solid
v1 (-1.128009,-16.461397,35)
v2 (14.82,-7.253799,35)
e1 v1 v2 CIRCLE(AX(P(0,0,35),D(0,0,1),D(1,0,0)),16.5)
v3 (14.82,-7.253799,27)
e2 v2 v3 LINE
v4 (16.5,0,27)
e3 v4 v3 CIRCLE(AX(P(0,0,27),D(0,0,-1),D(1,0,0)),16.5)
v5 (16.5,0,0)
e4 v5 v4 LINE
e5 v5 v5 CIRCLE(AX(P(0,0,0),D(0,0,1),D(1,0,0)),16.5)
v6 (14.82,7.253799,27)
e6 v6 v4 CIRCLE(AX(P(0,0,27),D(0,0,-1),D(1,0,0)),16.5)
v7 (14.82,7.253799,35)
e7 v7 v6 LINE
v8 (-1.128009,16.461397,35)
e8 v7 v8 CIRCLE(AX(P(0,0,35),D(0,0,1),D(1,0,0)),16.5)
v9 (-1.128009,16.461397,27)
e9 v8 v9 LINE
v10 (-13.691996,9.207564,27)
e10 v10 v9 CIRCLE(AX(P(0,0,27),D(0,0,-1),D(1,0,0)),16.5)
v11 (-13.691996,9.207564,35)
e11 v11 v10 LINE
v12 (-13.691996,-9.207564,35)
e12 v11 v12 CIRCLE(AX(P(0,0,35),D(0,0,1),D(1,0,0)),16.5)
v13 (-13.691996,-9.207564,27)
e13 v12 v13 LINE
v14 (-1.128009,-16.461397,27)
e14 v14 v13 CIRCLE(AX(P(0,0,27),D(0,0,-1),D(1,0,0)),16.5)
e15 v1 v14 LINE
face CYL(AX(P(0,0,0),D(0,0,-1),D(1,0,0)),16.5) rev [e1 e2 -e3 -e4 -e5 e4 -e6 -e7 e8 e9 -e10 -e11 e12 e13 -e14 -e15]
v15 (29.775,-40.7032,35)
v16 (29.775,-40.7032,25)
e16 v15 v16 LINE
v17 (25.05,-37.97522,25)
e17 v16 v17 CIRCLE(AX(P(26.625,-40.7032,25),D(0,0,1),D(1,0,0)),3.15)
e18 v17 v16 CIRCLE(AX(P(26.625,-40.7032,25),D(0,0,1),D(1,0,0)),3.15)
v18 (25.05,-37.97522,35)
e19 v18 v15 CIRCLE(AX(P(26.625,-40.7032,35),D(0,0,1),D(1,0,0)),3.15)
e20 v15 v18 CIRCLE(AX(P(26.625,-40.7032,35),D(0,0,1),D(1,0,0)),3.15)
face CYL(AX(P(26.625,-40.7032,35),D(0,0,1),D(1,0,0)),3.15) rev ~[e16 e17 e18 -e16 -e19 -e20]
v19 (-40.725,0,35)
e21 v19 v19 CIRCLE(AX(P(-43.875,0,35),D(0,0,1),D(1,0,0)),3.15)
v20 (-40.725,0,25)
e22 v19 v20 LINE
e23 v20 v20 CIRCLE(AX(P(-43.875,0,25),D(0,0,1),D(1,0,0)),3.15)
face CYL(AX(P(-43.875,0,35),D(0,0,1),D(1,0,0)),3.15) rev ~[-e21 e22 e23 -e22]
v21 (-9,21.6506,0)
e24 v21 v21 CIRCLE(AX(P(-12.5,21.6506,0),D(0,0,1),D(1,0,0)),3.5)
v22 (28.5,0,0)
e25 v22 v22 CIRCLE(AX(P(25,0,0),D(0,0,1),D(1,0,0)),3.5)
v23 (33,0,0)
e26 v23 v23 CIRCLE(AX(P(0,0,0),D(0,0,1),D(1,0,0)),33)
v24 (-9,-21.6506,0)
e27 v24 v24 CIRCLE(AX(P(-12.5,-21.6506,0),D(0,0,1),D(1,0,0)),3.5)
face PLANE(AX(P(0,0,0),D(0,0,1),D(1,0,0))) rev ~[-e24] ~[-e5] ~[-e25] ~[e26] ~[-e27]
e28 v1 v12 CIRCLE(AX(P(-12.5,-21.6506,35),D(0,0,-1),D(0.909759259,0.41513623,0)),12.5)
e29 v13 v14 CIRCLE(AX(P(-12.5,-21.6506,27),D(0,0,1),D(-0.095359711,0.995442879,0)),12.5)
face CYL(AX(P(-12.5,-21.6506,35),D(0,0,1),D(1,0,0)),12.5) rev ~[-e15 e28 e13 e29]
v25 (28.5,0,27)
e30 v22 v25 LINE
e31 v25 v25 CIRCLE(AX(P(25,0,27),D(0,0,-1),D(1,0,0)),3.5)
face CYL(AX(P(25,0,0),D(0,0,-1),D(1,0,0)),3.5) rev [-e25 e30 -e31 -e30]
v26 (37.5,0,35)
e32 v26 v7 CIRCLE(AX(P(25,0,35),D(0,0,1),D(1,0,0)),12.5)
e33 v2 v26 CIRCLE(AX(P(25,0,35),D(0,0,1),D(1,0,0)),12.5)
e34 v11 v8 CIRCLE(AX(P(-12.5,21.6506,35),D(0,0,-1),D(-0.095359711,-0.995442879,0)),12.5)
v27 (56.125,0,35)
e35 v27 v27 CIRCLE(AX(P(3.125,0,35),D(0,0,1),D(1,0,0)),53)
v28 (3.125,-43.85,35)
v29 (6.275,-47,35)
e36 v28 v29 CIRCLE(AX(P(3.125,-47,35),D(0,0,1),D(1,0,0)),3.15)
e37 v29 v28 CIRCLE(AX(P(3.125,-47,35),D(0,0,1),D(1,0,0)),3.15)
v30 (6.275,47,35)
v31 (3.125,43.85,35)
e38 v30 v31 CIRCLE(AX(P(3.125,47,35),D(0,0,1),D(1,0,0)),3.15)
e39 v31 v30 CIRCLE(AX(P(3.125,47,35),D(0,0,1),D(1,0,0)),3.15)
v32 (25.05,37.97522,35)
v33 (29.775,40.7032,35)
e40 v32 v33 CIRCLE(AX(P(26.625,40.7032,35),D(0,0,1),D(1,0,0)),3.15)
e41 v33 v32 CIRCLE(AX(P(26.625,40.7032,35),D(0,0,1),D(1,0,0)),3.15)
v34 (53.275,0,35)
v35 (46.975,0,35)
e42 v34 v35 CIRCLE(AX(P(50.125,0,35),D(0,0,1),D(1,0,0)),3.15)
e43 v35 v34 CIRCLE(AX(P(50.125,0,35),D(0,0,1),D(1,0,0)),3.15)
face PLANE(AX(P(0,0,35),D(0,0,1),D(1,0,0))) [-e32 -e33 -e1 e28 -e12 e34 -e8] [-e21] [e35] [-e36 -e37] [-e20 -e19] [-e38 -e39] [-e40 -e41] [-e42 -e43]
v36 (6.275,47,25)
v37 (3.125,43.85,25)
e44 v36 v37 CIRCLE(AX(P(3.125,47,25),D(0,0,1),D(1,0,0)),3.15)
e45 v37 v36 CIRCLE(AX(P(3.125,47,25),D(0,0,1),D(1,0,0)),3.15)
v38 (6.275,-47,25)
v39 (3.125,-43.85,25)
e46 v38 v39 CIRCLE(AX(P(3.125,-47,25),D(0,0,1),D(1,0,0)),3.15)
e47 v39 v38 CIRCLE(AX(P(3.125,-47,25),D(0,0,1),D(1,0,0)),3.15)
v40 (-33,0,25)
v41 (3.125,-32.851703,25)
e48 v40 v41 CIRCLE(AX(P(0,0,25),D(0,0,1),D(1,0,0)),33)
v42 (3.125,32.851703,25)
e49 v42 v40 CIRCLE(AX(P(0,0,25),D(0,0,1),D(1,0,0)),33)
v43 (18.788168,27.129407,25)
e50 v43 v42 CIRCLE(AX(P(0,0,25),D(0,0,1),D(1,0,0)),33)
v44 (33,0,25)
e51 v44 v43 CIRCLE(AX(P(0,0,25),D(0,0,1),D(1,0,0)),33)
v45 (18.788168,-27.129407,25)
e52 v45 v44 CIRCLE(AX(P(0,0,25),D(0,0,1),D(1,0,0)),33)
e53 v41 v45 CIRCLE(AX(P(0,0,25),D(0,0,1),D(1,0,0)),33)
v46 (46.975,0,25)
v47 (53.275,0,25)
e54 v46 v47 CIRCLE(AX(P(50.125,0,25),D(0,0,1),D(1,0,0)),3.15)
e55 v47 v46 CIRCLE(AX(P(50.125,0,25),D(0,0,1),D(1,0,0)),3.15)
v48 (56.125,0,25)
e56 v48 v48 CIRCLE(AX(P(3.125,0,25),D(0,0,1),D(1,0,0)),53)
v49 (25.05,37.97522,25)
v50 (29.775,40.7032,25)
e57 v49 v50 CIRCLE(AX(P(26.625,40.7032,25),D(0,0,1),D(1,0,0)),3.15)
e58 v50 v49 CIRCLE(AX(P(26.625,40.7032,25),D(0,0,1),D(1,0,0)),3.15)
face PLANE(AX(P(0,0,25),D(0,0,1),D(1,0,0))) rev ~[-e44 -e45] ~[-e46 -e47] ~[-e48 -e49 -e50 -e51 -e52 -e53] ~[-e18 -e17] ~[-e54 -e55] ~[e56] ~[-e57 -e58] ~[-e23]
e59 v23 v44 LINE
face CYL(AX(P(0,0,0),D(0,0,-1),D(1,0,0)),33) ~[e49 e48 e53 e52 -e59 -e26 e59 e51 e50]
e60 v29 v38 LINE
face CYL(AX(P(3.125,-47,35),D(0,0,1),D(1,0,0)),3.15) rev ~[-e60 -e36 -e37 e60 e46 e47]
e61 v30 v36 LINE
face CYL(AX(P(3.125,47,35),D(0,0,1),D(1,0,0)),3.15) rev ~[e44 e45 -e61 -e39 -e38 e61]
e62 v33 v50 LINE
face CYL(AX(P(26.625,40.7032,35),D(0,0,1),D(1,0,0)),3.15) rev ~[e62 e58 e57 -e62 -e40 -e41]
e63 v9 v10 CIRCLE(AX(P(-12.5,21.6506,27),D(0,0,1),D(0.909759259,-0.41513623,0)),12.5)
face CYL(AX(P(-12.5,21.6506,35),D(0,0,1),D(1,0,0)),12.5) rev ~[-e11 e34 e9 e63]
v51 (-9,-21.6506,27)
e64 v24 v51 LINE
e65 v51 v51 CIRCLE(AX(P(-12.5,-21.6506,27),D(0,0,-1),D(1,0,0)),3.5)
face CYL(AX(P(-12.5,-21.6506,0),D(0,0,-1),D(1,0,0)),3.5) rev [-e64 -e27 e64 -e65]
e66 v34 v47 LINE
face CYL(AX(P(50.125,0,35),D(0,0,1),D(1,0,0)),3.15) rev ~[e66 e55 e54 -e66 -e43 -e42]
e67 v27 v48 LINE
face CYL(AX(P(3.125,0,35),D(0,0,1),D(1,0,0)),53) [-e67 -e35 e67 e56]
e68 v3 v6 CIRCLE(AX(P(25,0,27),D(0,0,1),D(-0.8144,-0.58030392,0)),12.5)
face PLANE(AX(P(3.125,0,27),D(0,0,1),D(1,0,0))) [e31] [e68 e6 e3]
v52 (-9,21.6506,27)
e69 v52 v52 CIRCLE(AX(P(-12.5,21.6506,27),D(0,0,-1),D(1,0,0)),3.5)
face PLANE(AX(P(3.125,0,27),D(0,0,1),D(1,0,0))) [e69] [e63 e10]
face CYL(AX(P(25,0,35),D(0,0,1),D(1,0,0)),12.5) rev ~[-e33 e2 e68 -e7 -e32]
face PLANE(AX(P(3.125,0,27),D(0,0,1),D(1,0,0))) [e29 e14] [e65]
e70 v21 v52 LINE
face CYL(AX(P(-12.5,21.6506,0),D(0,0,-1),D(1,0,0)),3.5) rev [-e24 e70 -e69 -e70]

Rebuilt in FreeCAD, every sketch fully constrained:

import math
import FreeCAD as App
import Part
import Sketcher
Q = App.Units.Quantity

doc = App.newDocument("Part")
params = doc.addObject("Spreadsheet::Sheet", "Params")
for row, (alias, value) in enumerate([
    ("sketch1_diameter", "66 mm"),
    ("sketch1_diameter2", "7 mm"),
    ("sketch1_diameter3", "33 mm"),
    ("pad1_length", "35 mm"),
    ("sketch2_diameter", "106 mm"),
    ("sketch2_diameter2", "6.3 mm"),
    ("sketch2_radius", "33 mm"),
    ("pad2_length", "10 mm"),
    ("sketch3_diameter", "15 mm"),
    ("pocket1_length", "5 mm"),
    ("sketch4_diameter", "25 mm"),
    ("pocket2_length", "8 mm"),
], start=1):
    params.set(f"A{row}", alias)
    params.set(f"B{row}", "=" + value)
    params.setAlias(f"B{row}", alias)

body = doc.addObject("PartDesign::Body", "Body")

# Sketch on XY plane
sketch1 = body.newObject("Sketcher::SketchObject", "Sketch")
sketch1.AttachmentSupport = (doc.getObject("XY_Plane"), [""])
sketch1.MapMode = "FlatFace"
sketch1.addGeometry([
    Part.Circle(App.Vector(0, 0, 0), App.Vector(0, 0, 1), 33),  # 0
    Part.Circle(App.Vector(-12.5, -21.7, 0), App.Vector(0, 0, 1), 3.5),  # 1
    Part.Circle(App.Vector(-12.5, 21.7, 0), App.Vector(0, 0, 1), 3.5),  # 2
    Part.Circle(App.Vector(0, 0, 0), App.Vector(0, 0, 1), 16.5),  # 3
    Part.Circle(App.Vector(25, 0, 0), App.Vector(0, 0, 1), 3.5),  # 4
], False)
sketch1.addConstraint([
    Sketcher.Constraint("Coincident", 0, 3, -1, 1),
    Sketcher.Constraint("Coincident", 3, 3, -1, 1),
    Sketcher.Constraint("Equal", 1, 2),
    Sketcher.Constraint("Equal", 2, 4),
    Sketcher.Constraint("Symmetric", 1, 3, 2, 3, -1),
    Sketcher.Constraint("PointOnObject", 4, 3, -1),
    Sketcher.Constraint("Diameter", 0, Q("66 mm")),
    Sketcher.Constraint("Diameter", 1, Q("7 mm")),
    Sketcher.Constraint("Diameter", 3, Q("33 mm")),
    Sketcher.Constraint("DistanceX", -1, 1, 4, 3, Q("25 mm")),
    Sketcher.Constraint("DistanceX", 1, 3, -1, 1, Q("12.5 mm")),
    Sketcher.Constraint("DistanceY", 1, 3, -1, 1, Q("21.6506 mm")),
])
sketch1.setExpression("Constraints[6]", "Params.sketch1_diameter")
sketch1.setExpression("Constraints[7]", "Params.sketch1_diameter2")
sketch1.setExpression("Constraints[8]", "Params.sketch1_diameter3")
pad1 = body.newObject("PartDesign::Pad", "Pad")
pad1.Profile = sketch1
pad1.setExpression("Length", "Params.pad1_length")

# Sketch on XY plane
sketch2 = body.newObject("Sketcher::SketchObject", "Sketch001")
sketch2.AttachmentSupport = (doc.getObject("XY_Plane"), [""])
sketch2.MapMode = "FlatFace"
sketch2.AttachmentOffset = App.Placement(App.Vector(0, 0, 35), App.Rotation())
sketch2.addGeometry([
    Part.Circle(App.Vector(3.1, 0, 0), App.Vector(0, 0, 1), 53),  # 0
    Part.Circle(App.Vector(3.1, -47, 0), App.Vector(0, 0, 1), 3.1),  # 1
    Part.Circle(App.Vector(26.6, -40.7, 0), App.Vector(0, 0, 1), 3.1),  # 2
    Part.Circle(App.Vector(-43.9, 0, 0), App.Vector(0, 0, 1), 3.1),  # 3
    Part.ArcOfCircle(Part.Circle(App.Vector(0, 0, 0), App.Vector(0, 0, 1), 33), math.radians(55), math.radians(85)),  # 4
    Part.ArcOfCircle(Part.Circle(App.Vector(0, 0, 0), App.Vector(0, 0, 1), 33), math.radians(0), math.radians(55)),  # 5
    Part.ArcOfCircle(Part.Circle(App.Vector(0, 0, 0), App.Vector(0, 0, 1), 33), math.radians(-55), math.radians(0)),  # 6
    Part.ArcOfCircle(Part.Circle(App.Vector(0, 0, 0), App.Vector(0, 0, 1), 33), math.radians(-85), math.radians(-55)),  # 7
    Part.ArcOfCircle(Part.Circle(App.Vector(0, 0, 0), App.Vector(0, 0, 1), 33), math.radians(180), math.radians(275)),  # 8
    Part.ArcOfCircle(Part.Circle(App.Vector(0, 0, 0), App.Vector(0, 0, 1), 33), math.radians(85), math.radians(180)),  # 9
    Part.Circle(App.Vector(50.1, 0, 0), App.Vector(0, 0, 1), 3.1),  # 10
    Part.Circle(App.Vector(3.1, 47, 0), App.Vector(0, 0, 1), 3.1),  # 11
    Part.Circle(App.Vector(26.6, 40.7, 0), App.Vector(0, 0, 1), 3.1),  # 12
], False)
sketch2.addConstraint([
    Sketcher.Constraint("Tangent", 4, 1, 5, 2),
    Sketcher.Constraint("Tangent", 5, 1, 6, 2),
    Sketcher.Constraint("Tangent", 6, 1, 7, 2),
    Sketcher.Constraint("Tangent", 7, 1, 8, 2),
    Sketcher.Constraint("Tangent", 8, 1, 9, 2),
    Sketcher.Constraint("Tangent", 9, 1, 4, 2),
    Sketcher.Constraint("Coincident", 4, 3, -1, 1),
    Sketcher.Constraint("Coincident", 6, 3, -1, 1),
    Sketcher.Constraint("Equal", 1, 2),
    Sketcher.Constraint("Equal", 2, 3),
    Sketcher.Constraint("Equal", 6, 7),
    Sketcher.Constraint("Equal", 3, 10),
    Sketcher.Constraint("Equal", 10, 11),
    Sketcher.Constraint("Equal", 11, 12),
    Sketcher.Constraint("Symmetric", 1, 3, 11, 3, -1),
    Sketcher.Constraint("Symmetric", 2, 3, 12, 3, -1),
    Sketcher.Constraint("PointOnObject", 0, 3, -1),
    Sketcher.Constraint("PointOnObject", 3, 3, -1),
    Sketcher.Constraint("PointOnObject", 10, 3, -1),
    Sketcher.Constraint("PointOnObject", 5, 1, -1),
    Sketcher.Constraint("PointOnObject", 8, 1, -1),
    Sketcher.Constraint("Vertical", 0, 3, 1, 3),
    Sketcher.Constraint("Vertical", 4, 1, 6, 1),
    Sketcher.Constraint("Vertical", 11, 3, 7, 1),
    Sketcher.Constraint("Vertical", 7, 1, 9, 1),
    Sketcher.Constraint("Diameter", 0, Q("106 mm")),
    Sketcher.Constraint("Diameter", 1, Q("6.3 mm")),
    Sketcher.Constraint("DistanceY", 1, 3, -1, 1, Q("47 mm")),
    Sketcher.Constraint("Radius", 4, Q("33 mm")),
    Sketcher.Constraint("DistanceX", 3, 3, 0, 3, Q("47 mm")),
    Sketcher.Constraint("DistanceX", 0, 3, 10, 3, Q("47 mm")),
    Sketcher.Constraint("DistanceX", -1, 1, 0, 3, Q("3.125 mm")),
    Sketcher.Constraint("DistanceX", 1, 3, 2, 3, Q("23.5 mm")),
    Sketcher.Constraint("DistanceY", 2, 3, -1, 1, Q("40.7032 mm")),
    Sketcher.Constraint("DistanceX", -1, 1, 4, 1, Q("18.7882 mm")),
])
sketch2.setExpression("Constraints[25]", "Params.sketch2_diameter")
sketch2.setExpression("Constraints[26]", "Params.sketch2_diameter2")
sketch2.setExpression("Constraints[28]", "Params.sketch2_radius")
pad2 = body.newObject("PartDesign::Pad", "Pad001")
pad2.Profile = sketch2
pad2.setExpression("Length", "Params.pad2_length")
pad2.Reversed = True

# Sketch on XY plane
sketch3 = body.newObject("Sketcher::SketchObject", "Sketch002")
sketch3.AttachmentSupport = (doc.getObject("XY_Plane"), [""])
sketch3.MapMode = "FlatFace"
sketch3.AttachmentOffset = App.Placement(App.Vector(0, 0, 35), App.Rotation())
sketch3.addGeometry(Part.Circle(App.Vector(22, 0, 0), App.Vector(0, 0, 1), 8), False)
sketch3.addConstraint([
    Sketcher.Constraint("PointOnObject", 0, 3, -1),
    Sketcher.Constraint("Diameter", 0, Q("15 mm")),
    Sketcher.Constraint("DistanceX", -1, 1, 0, 3, Q("21.875 mm")),
])
sketch3.setExpression("Constraints[1]", "Params.sketch3_diameter")
pocket1 = body.newObject("PartDesign::Pocket", "Pocket")
pocket1.Profile = sketch3
pocket1.setExpression("Length", "Params.pocket1_length")

# Sketch on XY plane
sketch4 = body.newObject("Sketcher::SketchObject", "Sketch003")
sketch4.AttachmentSupport = (doc.getObject("XY_Plane"), [""])
sketch4.MapMode = "FlatFace"
sketch4.AttachmentOffset = App.Placement(App.Vector(0, 0, 35), App.Rotation())
sketch4.addGeometry([
    Part.Circle(App.Vector(25, 0, 0), App.Vector(0, 0, 1), 12),
    Part.Circle(App.Vector(-12, 22, 0), App.Vector(0, 0, 1), 12),
    Part.Circle(App.Vector(-12, -22, 0), App.Vector(0, 0, 1), 12),
], False)
sketch4.addConstraint([
    Sketcher.Constraint("Equal", 0, 1),
    Sketcher.Constraint("Equal", 1, 2),
    Sketcher.Constraint("Symmetric", 1, 3, 2, 3, -1),
    Sketcher.Constraint("PointOnObject", 0, 3, -1),
    Sketcher.Constraint("Diameter", 0, Q("25 mm")),
    Sketcher.Constraint("DistanceX", -1, 1, 0, 3, Q("25 mm")),
    Sketcher.Constraint("DistanceX", 1, 3, -1, 1, Q("12.5 mm")),
    Sketcher.Constraint("DistanceY", -1, 1, 1, 3, Q("21.6506 mm")),
])
sketch4.setExpression("Constraints[4]", "Params.sketch4_diameter")
pocket2 = body.newObject("PartDesign::Pocket", "Pocket001")
pocket2.Profile = sketch4
pocket2.setExpression("Length", "Params.pocket2_length")

doc.recompute()
